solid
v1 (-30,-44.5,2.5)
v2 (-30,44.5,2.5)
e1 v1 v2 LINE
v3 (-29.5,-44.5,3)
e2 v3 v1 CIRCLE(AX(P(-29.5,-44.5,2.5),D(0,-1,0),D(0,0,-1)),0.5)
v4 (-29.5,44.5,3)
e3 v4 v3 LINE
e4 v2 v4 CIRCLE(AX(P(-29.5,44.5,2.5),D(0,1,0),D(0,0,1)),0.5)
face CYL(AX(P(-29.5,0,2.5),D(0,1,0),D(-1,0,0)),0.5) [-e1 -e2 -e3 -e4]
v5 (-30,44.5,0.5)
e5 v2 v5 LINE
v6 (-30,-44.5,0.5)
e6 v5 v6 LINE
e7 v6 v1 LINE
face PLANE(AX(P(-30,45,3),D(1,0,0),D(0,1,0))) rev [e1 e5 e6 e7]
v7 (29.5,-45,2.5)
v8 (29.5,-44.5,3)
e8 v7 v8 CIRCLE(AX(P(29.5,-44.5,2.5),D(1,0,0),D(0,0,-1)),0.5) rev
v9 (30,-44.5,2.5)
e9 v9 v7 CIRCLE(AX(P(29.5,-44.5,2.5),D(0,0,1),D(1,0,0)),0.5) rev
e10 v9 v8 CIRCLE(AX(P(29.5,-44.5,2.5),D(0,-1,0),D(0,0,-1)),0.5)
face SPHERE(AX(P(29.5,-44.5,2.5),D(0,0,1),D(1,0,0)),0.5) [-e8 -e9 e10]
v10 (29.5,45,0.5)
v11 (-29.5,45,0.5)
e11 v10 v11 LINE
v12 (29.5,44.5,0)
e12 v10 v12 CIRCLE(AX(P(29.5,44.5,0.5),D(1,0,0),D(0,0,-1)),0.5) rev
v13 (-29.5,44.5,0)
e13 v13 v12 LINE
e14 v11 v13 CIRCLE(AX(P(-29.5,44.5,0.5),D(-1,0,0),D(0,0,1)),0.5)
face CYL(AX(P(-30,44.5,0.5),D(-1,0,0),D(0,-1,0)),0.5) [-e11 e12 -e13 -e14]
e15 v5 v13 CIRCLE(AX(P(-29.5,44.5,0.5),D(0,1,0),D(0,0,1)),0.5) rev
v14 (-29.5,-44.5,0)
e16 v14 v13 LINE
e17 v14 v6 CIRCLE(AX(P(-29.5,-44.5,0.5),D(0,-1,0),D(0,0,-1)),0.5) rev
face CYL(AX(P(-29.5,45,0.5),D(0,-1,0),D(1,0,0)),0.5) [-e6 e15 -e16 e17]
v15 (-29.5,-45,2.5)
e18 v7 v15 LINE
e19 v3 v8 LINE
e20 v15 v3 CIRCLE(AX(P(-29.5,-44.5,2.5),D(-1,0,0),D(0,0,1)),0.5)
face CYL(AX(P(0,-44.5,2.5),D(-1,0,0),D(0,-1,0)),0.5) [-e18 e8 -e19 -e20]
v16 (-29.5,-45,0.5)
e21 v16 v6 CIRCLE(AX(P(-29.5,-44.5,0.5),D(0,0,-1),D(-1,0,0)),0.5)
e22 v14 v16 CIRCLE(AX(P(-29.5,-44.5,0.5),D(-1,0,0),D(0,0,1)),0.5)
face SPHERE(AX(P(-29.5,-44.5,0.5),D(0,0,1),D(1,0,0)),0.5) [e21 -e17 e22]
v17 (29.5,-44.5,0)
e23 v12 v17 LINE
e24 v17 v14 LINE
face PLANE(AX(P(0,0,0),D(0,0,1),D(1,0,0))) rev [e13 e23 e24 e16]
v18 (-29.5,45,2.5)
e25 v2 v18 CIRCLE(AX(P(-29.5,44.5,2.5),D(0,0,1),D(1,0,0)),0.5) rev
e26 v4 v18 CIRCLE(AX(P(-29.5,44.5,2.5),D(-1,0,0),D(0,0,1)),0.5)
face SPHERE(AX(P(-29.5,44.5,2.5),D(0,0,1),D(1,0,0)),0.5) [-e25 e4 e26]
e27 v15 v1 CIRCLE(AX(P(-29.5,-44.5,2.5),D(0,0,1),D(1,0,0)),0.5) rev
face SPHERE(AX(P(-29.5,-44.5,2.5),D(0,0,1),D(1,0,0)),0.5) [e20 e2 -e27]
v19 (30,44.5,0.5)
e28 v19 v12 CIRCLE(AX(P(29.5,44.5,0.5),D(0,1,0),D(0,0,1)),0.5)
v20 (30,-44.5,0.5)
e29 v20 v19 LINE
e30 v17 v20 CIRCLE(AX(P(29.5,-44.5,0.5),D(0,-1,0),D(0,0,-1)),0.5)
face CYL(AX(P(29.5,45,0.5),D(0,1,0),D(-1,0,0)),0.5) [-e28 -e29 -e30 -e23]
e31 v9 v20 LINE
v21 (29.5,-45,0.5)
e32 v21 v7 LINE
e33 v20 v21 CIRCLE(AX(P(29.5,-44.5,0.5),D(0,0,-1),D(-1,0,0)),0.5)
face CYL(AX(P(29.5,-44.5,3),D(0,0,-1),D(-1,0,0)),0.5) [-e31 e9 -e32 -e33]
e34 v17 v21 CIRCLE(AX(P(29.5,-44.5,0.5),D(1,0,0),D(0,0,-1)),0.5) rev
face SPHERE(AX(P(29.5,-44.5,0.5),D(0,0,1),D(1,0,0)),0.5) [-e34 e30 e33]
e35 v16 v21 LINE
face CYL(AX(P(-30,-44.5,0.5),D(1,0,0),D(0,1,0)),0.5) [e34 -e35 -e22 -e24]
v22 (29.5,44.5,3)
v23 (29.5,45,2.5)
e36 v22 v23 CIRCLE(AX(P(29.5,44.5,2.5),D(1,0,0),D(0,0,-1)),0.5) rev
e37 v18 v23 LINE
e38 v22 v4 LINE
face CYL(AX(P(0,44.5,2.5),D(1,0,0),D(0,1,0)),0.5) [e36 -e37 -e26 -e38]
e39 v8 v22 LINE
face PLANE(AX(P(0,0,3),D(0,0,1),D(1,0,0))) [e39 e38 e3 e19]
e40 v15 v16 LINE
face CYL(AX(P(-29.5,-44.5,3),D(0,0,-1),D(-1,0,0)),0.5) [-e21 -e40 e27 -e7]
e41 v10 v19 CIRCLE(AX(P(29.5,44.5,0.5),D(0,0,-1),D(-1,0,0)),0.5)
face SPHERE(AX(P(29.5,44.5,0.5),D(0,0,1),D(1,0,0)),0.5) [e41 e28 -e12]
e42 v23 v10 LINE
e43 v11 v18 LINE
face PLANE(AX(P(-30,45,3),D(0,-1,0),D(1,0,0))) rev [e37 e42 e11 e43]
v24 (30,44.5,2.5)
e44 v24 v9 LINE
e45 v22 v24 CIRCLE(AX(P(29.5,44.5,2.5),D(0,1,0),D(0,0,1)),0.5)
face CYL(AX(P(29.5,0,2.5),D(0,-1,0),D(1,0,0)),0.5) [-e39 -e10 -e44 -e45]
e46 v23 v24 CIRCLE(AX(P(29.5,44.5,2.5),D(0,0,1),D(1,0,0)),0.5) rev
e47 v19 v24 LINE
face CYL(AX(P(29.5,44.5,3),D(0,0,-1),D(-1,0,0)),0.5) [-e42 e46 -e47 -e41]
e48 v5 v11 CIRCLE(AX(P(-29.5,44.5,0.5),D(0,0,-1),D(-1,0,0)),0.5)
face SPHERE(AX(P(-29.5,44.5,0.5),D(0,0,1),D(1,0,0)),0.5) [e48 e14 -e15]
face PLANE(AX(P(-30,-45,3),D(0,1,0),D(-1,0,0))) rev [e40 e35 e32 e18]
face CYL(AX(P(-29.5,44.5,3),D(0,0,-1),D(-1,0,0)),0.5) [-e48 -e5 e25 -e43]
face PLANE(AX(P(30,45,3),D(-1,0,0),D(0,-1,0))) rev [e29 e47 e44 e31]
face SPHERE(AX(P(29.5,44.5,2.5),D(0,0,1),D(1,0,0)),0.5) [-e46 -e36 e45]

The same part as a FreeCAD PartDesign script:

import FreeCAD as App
import Part
import Sketcher

V = App.Vector
Q = App.Units.Quantity


def add_polygon(sketch, points):
    """Adds a closed chain of lines whose ends are joined by coincident constraints."""
    first, n = sketch.GeometryCount, len(points)
    for a, b in zip(points, points[1:] + points[:1]):
        sketch.addGeometry(Part.LineSegment(App.Vector(*a, 0), App.Vector(*b, 0)), False)
    for i in range(n):
        sketch.addConstraint(Sketcher.Constraint("Coincident", first + i, 2, first + (i + 1) % n, 1))

doc = App.newDocument("Part")
body = doc.addObject("PartDesign::Body", "Body")

sketch1 = body.newObject("Sketcher::SketchObject", "Sketch")
sketch1.AttachmentSupport = (doc.getObject("XY_Plane"), [""])
sketch1.MapMode = "FlatFace"
add_polygon(sketch1, [(-30, 45), (-30, -45), (30, -45), (30, 45)])
sketch1.addConstraint([
    Sketcher.Constraint("Vertical", 0),
    Sketcher.Constraint("Horizontal", 1),
    Sketcher.Constraint("Vertical", 2),
    Sketcher.Constraint("Horizontal", 3),
    Sketcher.Constraint("Symmetric", 0, 2, 2, 2, -1, 1),
    Sketcher.Constraint("DistanceX", 1, 1, 1, 2, Q("60 mm")),
    Sketcher.Constraint("DistanceY", 0, 2, 0, 1, Q("90 mm")),
])
pad1 = body.newObject("PartDesign::Pad", "Pad")
pad1.Profile = sketch1
pad1.Length = 3
doc.recompute()

fillet = body.newObject("PartDesign::Fillet", "Fillet")
fillet.Base = (pad1, ["Edge1"])
fillet.UseAllEdges = True
fillet.Radius = 0.5

doc.recompute()
